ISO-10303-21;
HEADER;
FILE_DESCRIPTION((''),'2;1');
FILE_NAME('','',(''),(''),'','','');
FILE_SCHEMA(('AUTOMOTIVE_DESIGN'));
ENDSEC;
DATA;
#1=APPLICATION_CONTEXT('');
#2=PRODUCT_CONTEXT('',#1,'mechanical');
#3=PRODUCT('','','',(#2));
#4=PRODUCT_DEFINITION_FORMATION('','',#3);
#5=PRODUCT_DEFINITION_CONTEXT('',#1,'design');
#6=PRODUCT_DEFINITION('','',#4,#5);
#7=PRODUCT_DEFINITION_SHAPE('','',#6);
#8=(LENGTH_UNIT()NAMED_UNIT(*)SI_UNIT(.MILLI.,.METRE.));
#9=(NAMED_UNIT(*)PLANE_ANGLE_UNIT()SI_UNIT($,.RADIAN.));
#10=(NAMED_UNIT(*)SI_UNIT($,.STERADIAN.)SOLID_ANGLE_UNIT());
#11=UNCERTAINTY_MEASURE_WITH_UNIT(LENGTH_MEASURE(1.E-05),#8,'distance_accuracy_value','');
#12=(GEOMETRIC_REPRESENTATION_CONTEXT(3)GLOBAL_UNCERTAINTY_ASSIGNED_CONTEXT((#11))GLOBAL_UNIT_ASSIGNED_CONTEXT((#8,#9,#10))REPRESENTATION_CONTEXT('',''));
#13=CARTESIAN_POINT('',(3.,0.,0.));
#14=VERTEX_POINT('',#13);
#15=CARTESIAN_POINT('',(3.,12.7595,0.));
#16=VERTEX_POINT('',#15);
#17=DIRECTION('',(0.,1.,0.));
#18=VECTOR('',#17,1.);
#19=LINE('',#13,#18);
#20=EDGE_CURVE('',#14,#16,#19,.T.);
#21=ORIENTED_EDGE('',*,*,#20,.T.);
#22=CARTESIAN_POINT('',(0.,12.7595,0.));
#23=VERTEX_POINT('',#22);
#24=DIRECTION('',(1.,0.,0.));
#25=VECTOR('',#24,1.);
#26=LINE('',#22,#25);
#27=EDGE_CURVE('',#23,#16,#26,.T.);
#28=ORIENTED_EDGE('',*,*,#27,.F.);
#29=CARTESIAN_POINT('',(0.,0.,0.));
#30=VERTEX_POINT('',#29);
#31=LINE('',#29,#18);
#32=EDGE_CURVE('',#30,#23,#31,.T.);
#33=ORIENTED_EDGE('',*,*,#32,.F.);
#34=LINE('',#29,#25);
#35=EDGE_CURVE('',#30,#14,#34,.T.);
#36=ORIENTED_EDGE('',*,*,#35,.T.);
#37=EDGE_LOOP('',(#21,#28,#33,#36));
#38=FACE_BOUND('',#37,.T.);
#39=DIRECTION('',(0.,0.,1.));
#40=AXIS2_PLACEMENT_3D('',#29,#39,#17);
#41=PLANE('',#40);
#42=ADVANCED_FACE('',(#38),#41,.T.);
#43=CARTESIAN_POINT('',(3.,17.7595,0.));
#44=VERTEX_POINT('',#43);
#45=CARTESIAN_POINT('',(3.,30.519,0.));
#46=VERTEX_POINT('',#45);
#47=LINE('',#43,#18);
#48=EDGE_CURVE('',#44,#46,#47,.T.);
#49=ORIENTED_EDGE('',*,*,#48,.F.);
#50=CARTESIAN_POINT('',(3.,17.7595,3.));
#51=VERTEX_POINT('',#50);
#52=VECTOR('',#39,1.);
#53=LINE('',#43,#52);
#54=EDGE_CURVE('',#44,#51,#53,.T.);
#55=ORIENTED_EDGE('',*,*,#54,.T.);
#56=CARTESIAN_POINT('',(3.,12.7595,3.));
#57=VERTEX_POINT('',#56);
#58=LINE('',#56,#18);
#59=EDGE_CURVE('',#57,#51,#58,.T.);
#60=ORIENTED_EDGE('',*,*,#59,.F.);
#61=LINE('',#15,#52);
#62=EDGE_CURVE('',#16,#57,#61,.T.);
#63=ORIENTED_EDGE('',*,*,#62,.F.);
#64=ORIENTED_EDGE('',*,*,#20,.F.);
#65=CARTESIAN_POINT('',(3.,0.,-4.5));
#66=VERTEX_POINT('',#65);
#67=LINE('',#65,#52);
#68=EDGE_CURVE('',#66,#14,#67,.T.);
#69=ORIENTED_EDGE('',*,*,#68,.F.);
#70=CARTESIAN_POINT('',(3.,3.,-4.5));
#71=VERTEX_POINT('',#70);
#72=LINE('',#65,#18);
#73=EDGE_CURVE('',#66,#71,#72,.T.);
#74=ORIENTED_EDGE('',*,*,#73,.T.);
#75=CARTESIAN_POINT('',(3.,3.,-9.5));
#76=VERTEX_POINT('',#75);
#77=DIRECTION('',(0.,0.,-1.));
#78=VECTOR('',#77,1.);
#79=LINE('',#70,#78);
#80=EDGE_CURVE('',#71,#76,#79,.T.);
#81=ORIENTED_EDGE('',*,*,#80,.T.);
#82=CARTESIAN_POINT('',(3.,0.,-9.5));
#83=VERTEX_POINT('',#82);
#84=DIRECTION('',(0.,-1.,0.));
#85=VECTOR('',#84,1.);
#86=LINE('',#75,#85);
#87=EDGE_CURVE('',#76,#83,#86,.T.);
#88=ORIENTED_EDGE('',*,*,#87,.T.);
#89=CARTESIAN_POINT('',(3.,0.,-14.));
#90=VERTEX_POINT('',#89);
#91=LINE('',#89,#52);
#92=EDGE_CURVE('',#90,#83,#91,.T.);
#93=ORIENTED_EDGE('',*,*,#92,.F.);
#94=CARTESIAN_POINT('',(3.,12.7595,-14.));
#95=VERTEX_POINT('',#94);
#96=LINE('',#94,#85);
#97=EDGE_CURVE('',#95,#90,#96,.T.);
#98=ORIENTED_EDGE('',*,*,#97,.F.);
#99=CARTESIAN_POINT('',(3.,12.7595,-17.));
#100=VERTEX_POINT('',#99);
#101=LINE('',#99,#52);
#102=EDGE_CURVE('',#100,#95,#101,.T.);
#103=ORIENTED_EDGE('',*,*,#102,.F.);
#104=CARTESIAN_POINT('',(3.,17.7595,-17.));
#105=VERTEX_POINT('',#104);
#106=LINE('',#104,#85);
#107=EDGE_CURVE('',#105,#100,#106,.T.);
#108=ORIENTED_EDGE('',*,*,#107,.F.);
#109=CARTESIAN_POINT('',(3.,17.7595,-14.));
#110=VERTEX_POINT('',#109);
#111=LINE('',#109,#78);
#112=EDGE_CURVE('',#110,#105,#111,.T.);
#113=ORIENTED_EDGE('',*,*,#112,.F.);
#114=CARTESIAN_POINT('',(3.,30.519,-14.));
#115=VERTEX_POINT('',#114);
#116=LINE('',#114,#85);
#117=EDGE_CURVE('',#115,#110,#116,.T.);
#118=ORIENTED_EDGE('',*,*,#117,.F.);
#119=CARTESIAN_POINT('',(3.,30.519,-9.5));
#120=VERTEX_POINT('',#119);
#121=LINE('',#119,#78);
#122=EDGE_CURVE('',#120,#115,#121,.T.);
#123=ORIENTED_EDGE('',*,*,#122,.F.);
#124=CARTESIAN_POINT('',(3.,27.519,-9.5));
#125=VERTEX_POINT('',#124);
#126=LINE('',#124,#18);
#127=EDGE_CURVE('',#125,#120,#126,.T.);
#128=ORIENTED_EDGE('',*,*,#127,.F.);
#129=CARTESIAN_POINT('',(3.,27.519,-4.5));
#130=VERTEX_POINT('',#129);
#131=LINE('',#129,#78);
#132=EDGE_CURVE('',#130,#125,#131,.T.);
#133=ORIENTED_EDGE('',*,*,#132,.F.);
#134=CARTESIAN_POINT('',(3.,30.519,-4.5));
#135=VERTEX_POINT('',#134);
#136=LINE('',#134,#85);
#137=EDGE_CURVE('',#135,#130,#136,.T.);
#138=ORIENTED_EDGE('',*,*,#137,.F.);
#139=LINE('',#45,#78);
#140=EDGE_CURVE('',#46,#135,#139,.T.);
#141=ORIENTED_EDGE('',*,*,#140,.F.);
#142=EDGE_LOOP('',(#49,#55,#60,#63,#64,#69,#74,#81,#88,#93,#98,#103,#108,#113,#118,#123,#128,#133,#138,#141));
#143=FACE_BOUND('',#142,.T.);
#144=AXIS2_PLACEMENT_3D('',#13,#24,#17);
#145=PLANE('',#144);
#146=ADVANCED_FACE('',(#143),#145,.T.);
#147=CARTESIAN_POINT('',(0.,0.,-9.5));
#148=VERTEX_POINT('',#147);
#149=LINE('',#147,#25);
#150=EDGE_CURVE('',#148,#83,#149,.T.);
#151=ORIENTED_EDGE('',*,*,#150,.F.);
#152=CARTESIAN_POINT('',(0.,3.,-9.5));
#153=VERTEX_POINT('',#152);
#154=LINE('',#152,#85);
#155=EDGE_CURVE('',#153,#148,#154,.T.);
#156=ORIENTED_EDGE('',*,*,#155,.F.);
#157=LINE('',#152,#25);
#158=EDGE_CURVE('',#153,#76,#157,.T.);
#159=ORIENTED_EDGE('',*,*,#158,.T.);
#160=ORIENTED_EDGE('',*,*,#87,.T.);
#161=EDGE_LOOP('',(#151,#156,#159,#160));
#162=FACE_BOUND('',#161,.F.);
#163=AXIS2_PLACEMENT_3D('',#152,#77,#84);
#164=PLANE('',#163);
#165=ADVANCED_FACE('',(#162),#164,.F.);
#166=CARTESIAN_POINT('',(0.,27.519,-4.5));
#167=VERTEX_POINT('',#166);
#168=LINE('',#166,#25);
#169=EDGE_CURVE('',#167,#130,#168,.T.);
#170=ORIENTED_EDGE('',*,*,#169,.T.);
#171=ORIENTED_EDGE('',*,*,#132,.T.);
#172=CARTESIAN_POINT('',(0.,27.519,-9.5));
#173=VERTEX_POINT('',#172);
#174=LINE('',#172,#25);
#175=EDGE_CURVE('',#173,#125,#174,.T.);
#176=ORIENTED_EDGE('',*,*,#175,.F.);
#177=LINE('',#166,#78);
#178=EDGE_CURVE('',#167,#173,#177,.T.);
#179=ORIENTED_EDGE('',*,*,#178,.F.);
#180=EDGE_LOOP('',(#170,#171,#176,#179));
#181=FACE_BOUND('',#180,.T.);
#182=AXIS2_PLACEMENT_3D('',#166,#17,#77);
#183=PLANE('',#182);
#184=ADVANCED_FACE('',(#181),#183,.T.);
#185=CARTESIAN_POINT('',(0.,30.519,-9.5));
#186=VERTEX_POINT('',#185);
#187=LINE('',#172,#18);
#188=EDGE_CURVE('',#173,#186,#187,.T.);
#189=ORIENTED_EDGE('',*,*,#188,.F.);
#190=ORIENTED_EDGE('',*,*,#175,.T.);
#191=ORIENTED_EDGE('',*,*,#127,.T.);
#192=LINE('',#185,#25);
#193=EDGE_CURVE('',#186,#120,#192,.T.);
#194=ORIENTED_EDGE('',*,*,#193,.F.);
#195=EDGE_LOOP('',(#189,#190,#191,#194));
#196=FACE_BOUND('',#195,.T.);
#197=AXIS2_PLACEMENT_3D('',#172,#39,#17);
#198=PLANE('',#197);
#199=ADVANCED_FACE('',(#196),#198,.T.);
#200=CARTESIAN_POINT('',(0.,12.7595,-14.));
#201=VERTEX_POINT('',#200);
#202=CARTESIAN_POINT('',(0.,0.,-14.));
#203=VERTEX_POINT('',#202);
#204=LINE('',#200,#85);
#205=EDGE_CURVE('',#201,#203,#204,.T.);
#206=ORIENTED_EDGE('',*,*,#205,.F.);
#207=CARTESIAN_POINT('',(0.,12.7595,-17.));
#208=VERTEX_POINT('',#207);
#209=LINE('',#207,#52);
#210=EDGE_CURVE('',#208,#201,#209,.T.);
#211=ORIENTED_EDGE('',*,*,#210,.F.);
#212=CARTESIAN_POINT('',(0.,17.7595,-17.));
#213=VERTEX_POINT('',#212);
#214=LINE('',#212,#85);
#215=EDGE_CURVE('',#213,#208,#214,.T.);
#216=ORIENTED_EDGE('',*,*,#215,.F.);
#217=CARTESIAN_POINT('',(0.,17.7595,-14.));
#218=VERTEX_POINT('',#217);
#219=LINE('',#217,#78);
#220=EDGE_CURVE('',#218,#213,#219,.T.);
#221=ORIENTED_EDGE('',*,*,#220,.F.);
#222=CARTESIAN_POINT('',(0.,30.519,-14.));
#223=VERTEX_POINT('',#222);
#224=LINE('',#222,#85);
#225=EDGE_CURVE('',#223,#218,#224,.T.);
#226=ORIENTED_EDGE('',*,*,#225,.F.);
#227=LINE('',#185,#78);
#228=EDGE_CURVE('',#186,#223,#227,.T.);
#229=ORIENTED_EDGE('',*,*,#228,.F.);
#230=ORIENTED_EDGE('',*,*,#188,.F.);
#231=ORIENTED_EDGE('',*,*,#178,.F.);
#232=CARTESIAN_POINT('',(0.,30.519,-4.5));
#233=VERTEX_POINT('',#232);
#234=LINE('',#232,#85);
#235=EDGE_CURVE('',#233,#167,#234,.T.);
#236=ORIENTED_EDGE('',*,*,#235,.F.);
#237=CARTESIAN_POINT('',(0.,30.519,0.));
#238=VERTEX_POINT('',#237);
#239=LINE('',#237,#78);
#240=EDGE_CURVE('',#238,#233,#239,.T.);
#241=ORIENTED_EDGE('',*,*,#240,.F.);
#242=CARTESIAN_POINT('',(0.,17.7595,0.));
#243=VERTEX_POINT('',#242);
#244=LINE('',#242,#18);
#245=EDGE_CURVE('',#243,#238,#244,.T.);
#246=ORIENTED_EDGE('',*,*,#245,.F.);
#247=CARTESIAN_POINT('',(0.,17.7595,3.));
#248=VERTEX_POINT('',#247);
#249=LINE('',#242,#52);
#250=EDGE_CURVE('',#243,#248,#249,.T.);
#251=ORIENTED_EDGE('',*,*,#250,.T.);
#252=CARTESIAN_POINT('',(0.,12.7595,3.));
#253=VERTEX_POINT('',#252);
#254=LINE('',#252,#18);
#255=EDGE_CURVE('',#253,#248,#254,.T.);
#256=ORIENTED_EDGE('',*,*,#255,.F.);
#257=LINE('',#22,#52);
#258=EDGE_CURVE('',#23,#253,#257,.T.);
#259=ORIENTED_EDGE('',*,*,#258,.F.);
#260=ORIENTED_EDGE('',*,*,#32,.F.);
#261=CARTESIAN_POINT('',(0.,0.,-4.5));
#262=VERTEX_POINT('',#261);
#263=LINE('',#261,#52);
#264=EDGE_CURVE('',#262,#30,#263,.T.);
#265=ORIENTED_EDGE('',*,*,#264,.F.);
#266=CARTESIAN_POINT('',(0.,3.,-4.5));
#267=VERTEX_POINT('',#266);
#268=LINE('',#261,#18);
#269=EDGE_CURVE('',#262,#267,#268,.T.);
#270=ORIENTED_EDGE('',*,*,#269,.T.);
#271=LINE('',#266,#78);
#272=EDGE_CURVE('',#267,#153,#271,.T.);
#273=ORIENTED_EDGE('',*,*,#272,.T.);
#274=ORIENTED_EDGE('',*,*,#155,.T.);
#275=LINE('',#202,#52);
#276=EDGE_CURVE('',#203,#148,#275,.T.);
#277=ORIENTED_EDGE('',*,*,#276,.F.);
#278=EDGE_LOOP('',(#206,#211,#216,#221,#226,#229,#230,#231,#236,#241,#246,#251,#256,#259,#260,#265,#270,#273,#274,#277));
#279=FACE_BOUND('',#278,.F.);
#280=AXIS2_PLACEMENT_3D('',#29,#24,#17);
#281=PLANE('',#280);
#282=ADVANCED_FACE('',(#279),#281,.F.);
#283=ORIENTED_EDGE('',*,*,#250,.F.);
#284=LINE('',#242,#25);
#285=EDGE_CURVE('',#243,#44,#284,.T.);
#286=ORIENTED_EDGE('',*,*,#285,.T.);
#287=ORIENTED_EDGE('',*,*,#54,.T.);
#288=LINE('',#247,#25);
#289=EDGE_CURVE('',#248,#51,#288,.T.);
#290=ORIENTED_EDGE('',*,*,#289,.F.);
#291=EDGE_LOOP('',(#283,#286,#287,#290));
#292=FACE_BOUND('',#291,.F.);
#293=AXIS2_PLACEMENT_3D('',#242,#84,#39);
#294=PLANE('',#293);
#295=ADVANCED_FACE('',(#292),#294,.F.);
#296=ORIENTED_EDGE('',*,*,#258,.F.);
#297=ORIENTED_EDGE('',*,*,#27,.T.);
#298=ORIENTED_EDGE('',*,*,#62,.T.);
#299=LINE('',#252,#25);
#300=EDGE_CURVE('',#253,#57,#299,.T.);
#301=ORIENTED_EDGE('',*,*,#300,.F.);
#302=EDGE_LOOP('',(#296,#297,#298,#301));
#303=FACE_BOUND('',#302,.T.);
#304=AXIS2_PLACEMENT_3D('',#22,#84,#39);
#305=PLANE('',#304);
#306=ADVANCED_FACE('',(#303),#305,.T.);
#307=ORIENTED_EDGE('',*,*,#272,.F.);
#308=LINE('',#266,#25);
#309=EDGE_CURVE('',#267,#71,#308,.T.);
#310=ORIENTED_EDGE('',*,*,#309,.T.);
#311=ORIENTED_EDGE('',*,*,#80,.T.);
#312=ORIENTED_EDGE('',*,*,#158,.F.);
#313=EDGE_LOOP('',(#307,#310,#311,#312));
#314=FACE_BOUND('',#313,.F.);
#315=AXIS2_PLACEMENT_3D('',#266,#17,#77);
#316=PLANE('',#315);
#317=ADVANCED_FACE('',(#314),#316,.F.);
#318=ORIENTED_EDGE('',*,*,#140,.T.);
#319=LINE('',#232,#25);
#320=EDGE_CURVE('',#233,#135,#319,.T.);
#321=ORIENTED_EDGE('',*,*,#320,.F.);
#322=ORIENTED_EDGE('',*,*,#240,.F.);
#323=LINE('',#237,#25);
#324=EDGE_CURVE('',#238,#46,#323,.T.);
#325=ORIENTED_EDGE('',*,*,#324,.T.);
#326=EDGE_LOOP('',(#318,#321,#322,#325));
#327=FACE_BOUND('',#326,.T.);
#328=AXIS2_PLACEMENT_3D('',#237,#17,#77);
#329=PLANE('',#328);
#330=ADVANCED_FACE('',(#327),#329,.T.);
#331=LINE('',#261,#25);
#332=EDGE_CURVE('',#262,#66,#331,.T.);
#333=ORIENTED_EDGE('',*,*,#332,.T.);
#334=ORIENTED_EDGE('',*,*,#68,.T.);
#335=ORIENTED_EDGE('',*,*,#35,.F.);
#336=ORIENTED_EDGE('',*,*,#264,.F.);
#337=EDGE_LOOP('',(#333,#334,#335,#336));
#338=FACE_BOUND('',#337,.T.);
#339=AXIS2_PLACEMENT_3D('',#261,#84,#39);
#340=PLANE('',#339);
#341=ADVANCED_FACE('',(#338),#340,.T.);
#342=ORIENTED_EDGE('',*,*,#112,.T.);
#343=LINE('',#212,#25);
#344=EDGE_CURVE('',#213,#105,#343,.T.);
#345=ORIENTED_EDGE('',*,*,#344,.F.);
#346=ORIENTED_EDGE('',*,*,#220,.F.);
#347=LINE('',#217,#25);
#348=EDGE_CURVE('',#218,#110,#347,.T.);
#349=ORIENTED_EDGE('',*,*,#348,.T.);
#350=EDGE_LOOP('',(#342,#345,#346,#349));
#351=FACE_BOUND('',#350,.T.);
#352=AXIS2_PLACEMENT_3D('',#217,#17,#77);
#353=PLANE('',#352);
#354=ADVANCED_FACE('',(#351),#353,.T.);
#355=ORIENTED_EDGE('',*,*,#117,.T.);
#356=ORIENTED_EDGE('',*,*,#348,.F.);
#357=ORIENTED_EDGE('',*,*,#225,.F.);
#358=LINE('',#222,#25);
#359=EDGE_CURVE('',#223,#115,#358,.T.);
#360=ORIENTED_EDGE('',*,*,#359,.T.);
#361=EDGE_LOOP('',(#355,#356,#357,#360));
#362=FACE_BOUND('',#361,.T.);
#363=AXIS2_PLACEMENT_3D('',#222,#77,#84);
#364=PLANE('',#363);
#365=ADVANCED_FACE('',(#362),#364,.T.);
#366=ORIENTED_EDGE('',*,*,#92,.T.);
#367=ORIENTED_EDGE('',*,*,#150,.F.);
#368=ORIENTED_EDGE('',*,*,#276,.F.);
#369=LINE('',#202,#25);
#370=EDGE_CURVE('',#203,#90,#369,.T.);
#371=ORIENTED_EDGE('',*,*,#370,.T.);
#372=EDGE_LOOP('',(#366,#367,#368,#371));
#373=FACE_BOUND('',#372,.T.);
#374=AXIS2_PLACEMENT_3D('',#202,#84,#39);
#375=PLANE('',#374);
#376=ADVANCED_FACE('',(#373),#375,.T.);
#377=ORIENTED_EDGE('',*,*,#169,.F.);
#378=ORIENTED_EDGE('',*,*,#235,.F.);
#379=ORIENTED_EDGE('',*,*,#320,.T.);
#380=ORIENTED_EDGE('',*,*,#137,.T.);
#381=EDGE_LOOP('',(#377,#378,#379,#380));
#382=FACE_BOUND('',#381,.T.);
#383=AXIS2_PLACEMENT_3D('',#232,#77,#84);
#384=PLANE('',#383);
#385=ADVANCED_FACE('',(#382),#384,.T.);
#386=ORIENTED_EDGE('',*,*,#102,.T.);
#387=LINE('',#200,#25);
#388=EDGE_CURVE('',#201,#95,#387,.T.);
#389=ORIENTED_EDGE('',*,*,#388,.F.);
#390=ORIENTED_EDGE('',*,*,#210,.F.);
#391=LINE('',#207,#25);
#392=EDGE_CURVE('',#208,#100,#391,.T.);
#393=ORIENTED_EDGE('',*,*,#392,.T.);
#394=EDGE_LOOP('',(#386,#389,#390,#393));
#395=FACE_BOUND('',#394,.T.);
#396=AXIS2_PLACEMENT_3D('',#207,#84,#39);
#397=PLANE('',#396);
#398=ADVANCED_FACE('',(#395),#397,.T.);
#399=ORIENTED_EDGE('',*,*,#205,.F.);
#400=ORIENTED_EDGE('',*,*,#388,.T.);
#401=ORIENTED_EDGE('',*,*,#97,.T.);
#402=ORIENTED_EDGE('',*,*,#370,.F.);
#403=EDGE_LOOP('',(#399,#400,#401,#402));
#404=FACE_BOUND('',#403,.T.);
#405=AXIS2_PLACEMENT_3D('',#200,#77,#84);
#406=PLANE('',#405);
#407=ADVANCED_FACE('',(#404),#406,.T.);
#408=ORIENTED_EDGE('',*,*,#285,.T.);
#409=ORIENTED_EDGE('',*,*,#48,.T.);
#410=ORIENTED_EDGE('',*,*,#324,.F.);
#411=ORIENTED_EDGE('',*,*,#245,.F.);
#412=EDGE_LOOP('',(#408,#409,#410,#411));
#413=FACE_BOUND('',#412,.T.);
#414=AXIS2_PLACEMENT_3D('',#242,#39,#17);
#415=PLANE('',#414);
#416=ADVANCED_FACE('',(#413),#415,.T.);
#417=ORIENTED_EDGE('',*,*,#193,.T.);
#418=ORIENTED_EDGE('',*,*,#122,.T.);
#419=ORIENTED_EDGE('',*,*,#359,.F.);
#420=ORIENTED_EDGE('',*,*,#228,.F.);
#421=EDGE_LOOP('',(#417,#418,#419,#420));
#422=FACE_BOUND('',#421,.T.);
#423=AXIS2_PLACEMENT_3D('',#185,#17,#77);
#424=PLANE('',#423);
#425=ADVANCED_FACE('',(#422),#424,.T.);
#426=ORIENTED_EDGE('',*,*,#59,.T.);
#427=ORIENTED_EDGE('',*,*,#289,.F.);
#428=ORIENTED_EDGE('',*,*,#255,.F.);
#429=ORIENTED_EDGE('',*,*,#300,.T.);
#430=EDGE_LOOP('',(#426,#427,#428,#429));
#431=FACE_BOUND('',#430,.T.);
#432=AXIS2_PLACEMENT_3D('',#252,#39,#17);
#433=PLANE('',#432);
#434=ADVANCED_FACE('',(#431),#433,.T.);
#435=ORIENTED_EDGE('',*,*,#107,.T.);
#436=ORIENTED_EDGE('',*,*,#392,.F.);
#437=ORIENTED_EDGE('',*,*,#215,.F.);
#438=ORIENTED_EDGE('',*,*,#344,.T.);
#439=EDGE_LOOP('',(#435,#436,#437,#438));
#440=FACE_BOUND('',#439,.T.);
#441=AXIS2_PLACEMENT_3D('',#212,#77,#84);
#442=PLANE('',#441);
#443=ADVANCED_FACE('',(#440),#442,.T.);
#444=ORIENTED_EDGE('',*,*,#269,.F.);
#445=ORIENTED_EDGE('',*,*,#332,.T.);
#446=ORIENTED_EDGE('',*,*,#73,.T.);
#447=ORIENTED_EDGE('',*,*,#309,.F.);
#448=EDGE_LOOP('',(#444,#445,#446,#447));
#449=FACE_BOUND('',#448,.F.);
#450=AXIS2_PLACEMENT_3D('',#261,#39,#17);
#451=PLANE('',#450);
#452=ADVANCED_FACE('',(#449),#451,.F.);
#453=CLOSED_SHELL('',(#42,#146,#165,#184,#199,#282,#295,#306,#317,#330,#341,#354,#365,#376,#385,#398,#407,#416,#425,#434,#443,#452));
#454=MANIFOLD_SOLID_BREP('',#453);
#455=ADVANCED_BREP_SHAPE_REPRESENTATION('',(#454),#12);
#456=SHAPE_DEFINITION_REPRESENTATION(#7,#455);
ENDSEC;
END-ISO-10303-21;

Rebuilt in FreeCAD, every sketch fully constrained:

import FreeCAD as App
import Part
import Sketcher
from FreeCAD import Vector
Q = App.Units.Quantity


def add_polygon(sketch, points):
    """Adds a closed chain of lines whose ends are joined by coincident constraints."""
    first, n = sketch.GeometryCount, len(points)
    for a, b in zip(points, points[1:] + points[:1]):
        sketch.addGeometry(Part.LineSegment(App.Vector(*a, 0), App.Vector(*b, 0)), False)
    for i in range(n):
        sketch.addConstraint(Sketcher.Constraint("Coincident", first + i, 2, first + (i + 1) % n, 1))

doc = App.newDocument("Part")
params = doc.addObject("Spreadsheet::Sheet", "Params")
for row, (alias, value) in enumerate([
    ("sketch1_width", "5 mm"),
    ("sketch1_width2", "3 mm"),
    ("sketch1_height", "4.5 mm"),
    ("pad1_length", "3 mm"),
], start=1):
    params.set(f"A{row}", alias)
    params.set(f"B{row}", "=" + value)
    params.setAlias(f"B{row}", alias)

body = doc.addObject("PartDesign::Body", "Body")

# Sketch on YZ plane
sketch1 = doc.addObject("Sketcher::SketchObject", "Sketch")
body.addObject(sketch1)
sketch1.AttachmentSupport = (doc.YZ_Plane, [""])
sketch1.MapMode = "FlatFace"
add_polygon(sketch1, [(17.8, 3), (12.8, 3), (12.8, 0), (0, 0), (0, -4.5), (3, -4.5), (3, -9.5), (0, -9.5), (0, -14), (12.8, -14), (12.8, -17), (17.8, -17), (17.8, -14), (30.5, -14), (30.5, -9.5), (27.5, -9.5), (27.5, -4.5), (30.5, -4.5), (30.5, 0), (17.8, 0)])  # lines 0-19
sketch1.addConstraint(Sketcher.Constraint("Horizontal", 0))
sketch1.addConstraint(Sketcher.Constraint("Vertical", 1))
sketch1.addConstraint(Sketcher.Constraint("Horizontal", 2))
sketch1.addConstraint(Sketcher.Constraint("Vertical", 3))
sketch1.addConstraint(Sketcher.Constraint("Horizontal", 4))
sketch1.addConstraint(Sketcher.Constraint("Vertical", 5))
sketch1.addConstraint(Sketcher.Constraint("Horizontal", 6))
sketch1.addConstraint(Sketcher.Constraint("Vertical", 7))
sketch1.addConstraint(Sketcher.Constraint("Horizontal", 8))
sketch1.addConstraint(Sketcher.Constraint("Vertical", 9))
sketch1.addConstraint(Sketcher.Constraint("Horizontal", 10))
sketch1.addConstraint(Sketcher.Constraint("Vertical", 11))
sketch1.addConstraint(Sketcher.Constraint("Horizontal", 12))
sketch1.addConstraint(Sketcher.Constraint("Vertical", 13))
sketch1.addConstraint(Sketcher.Constraint("Horizontal", 14))
sketch1.addConstraint(Sketcher.Constraint("Vertical", 15))
sketch1.addConstraint(Sketcher.Constraint("Horizontal", 16))
sketch1.addConstraint(Sketcher.Constraint("Vertical", 17))
sketch1.addConstraint(Sketcher.Constraint("Horizontal", 18))
sketch1.addConstraint(Sketcher.Constraint("Vertical", 19))
sketch1.addConstraint(Sketcher.Constraint("Coincident", 2, 2, -1, 1))
sketch1.addConstraint(Sketcher.Constraint("PointOnObject", 6, 2, -2))
sketch1.addConstraint(Sketcher.Constraint("PointOnObject", 17, 2, -1))
sketch1.addConstraint(Sketcher.Constraint("Horizontal", 8, 2, 11, 2))
sketch1.addConstraint(Sketcher.Constraint("Horizontal", 6, 2, 13, 2))
sketch1.addConstraint(Sketcher.Constraint("Horizontal", 4, 2, 15, 2))
sketch1.addConstraint(Sketcher.Constraint("Vertical", 1, 2, 8, 2))
sketch1.addConstraint(Sketcher.Constraint("Vertical", 13, 2, 16, 2))
sketch1.addConstraint(Sketcher.Constraint("Vertical", 11, 2, 18, 2))
sketch1.addConstraint(Sketcher.Constraint("Equal", 8, 12))
sketch1.addConstraint(Sketcher.Constraint("Equal", 6, 14))
sketch1.addConstraint(Sketcher.Constraint("Equal", 16, 1))
sketch1.addConstraint(Sketcher.Constraint("Equal", 10, 5))
sketch1.addConstraint(Sketcher.Constraint("Equal", 3, 7))
sketch1.addConstraint(Sketcher.Constraint("Equal", 1, 9))
sketch1.addConstraint(Sketcher.Constraint("DistanceX", 0, 2, 0, 1, Q("5 mm")))
sketch1.addConstraint(Sketcher.Constraint("DistanceX", 4, 1, 4, 2, Q("3 mm")))
sketch1.addConstraint(Sketcher.Constraint("DistanceY", 3, 2, 3, 1, Q("4.5 mm")))
sketch1.addConstraint(Sketcher.Constraint("DistanceX", -1, 1, 12, 2, Q("30.519 mm")))
sketch1.setExpression("Constraints[55]", "Params.sketch1_width")
sketch1.setExpression("Constraints[56]", "Params.sketch1_width2")
sketch1.setExpression("Constraints[57]", "Params.sketch1_height")
pad1 = doc.addObject("PartDesign::Pad", "Pad")
body.addObject(pad1)
pad1.Profile = sketch1
pad1.setExpression("Length", "Params.pad1_length")

doc.recompute()
